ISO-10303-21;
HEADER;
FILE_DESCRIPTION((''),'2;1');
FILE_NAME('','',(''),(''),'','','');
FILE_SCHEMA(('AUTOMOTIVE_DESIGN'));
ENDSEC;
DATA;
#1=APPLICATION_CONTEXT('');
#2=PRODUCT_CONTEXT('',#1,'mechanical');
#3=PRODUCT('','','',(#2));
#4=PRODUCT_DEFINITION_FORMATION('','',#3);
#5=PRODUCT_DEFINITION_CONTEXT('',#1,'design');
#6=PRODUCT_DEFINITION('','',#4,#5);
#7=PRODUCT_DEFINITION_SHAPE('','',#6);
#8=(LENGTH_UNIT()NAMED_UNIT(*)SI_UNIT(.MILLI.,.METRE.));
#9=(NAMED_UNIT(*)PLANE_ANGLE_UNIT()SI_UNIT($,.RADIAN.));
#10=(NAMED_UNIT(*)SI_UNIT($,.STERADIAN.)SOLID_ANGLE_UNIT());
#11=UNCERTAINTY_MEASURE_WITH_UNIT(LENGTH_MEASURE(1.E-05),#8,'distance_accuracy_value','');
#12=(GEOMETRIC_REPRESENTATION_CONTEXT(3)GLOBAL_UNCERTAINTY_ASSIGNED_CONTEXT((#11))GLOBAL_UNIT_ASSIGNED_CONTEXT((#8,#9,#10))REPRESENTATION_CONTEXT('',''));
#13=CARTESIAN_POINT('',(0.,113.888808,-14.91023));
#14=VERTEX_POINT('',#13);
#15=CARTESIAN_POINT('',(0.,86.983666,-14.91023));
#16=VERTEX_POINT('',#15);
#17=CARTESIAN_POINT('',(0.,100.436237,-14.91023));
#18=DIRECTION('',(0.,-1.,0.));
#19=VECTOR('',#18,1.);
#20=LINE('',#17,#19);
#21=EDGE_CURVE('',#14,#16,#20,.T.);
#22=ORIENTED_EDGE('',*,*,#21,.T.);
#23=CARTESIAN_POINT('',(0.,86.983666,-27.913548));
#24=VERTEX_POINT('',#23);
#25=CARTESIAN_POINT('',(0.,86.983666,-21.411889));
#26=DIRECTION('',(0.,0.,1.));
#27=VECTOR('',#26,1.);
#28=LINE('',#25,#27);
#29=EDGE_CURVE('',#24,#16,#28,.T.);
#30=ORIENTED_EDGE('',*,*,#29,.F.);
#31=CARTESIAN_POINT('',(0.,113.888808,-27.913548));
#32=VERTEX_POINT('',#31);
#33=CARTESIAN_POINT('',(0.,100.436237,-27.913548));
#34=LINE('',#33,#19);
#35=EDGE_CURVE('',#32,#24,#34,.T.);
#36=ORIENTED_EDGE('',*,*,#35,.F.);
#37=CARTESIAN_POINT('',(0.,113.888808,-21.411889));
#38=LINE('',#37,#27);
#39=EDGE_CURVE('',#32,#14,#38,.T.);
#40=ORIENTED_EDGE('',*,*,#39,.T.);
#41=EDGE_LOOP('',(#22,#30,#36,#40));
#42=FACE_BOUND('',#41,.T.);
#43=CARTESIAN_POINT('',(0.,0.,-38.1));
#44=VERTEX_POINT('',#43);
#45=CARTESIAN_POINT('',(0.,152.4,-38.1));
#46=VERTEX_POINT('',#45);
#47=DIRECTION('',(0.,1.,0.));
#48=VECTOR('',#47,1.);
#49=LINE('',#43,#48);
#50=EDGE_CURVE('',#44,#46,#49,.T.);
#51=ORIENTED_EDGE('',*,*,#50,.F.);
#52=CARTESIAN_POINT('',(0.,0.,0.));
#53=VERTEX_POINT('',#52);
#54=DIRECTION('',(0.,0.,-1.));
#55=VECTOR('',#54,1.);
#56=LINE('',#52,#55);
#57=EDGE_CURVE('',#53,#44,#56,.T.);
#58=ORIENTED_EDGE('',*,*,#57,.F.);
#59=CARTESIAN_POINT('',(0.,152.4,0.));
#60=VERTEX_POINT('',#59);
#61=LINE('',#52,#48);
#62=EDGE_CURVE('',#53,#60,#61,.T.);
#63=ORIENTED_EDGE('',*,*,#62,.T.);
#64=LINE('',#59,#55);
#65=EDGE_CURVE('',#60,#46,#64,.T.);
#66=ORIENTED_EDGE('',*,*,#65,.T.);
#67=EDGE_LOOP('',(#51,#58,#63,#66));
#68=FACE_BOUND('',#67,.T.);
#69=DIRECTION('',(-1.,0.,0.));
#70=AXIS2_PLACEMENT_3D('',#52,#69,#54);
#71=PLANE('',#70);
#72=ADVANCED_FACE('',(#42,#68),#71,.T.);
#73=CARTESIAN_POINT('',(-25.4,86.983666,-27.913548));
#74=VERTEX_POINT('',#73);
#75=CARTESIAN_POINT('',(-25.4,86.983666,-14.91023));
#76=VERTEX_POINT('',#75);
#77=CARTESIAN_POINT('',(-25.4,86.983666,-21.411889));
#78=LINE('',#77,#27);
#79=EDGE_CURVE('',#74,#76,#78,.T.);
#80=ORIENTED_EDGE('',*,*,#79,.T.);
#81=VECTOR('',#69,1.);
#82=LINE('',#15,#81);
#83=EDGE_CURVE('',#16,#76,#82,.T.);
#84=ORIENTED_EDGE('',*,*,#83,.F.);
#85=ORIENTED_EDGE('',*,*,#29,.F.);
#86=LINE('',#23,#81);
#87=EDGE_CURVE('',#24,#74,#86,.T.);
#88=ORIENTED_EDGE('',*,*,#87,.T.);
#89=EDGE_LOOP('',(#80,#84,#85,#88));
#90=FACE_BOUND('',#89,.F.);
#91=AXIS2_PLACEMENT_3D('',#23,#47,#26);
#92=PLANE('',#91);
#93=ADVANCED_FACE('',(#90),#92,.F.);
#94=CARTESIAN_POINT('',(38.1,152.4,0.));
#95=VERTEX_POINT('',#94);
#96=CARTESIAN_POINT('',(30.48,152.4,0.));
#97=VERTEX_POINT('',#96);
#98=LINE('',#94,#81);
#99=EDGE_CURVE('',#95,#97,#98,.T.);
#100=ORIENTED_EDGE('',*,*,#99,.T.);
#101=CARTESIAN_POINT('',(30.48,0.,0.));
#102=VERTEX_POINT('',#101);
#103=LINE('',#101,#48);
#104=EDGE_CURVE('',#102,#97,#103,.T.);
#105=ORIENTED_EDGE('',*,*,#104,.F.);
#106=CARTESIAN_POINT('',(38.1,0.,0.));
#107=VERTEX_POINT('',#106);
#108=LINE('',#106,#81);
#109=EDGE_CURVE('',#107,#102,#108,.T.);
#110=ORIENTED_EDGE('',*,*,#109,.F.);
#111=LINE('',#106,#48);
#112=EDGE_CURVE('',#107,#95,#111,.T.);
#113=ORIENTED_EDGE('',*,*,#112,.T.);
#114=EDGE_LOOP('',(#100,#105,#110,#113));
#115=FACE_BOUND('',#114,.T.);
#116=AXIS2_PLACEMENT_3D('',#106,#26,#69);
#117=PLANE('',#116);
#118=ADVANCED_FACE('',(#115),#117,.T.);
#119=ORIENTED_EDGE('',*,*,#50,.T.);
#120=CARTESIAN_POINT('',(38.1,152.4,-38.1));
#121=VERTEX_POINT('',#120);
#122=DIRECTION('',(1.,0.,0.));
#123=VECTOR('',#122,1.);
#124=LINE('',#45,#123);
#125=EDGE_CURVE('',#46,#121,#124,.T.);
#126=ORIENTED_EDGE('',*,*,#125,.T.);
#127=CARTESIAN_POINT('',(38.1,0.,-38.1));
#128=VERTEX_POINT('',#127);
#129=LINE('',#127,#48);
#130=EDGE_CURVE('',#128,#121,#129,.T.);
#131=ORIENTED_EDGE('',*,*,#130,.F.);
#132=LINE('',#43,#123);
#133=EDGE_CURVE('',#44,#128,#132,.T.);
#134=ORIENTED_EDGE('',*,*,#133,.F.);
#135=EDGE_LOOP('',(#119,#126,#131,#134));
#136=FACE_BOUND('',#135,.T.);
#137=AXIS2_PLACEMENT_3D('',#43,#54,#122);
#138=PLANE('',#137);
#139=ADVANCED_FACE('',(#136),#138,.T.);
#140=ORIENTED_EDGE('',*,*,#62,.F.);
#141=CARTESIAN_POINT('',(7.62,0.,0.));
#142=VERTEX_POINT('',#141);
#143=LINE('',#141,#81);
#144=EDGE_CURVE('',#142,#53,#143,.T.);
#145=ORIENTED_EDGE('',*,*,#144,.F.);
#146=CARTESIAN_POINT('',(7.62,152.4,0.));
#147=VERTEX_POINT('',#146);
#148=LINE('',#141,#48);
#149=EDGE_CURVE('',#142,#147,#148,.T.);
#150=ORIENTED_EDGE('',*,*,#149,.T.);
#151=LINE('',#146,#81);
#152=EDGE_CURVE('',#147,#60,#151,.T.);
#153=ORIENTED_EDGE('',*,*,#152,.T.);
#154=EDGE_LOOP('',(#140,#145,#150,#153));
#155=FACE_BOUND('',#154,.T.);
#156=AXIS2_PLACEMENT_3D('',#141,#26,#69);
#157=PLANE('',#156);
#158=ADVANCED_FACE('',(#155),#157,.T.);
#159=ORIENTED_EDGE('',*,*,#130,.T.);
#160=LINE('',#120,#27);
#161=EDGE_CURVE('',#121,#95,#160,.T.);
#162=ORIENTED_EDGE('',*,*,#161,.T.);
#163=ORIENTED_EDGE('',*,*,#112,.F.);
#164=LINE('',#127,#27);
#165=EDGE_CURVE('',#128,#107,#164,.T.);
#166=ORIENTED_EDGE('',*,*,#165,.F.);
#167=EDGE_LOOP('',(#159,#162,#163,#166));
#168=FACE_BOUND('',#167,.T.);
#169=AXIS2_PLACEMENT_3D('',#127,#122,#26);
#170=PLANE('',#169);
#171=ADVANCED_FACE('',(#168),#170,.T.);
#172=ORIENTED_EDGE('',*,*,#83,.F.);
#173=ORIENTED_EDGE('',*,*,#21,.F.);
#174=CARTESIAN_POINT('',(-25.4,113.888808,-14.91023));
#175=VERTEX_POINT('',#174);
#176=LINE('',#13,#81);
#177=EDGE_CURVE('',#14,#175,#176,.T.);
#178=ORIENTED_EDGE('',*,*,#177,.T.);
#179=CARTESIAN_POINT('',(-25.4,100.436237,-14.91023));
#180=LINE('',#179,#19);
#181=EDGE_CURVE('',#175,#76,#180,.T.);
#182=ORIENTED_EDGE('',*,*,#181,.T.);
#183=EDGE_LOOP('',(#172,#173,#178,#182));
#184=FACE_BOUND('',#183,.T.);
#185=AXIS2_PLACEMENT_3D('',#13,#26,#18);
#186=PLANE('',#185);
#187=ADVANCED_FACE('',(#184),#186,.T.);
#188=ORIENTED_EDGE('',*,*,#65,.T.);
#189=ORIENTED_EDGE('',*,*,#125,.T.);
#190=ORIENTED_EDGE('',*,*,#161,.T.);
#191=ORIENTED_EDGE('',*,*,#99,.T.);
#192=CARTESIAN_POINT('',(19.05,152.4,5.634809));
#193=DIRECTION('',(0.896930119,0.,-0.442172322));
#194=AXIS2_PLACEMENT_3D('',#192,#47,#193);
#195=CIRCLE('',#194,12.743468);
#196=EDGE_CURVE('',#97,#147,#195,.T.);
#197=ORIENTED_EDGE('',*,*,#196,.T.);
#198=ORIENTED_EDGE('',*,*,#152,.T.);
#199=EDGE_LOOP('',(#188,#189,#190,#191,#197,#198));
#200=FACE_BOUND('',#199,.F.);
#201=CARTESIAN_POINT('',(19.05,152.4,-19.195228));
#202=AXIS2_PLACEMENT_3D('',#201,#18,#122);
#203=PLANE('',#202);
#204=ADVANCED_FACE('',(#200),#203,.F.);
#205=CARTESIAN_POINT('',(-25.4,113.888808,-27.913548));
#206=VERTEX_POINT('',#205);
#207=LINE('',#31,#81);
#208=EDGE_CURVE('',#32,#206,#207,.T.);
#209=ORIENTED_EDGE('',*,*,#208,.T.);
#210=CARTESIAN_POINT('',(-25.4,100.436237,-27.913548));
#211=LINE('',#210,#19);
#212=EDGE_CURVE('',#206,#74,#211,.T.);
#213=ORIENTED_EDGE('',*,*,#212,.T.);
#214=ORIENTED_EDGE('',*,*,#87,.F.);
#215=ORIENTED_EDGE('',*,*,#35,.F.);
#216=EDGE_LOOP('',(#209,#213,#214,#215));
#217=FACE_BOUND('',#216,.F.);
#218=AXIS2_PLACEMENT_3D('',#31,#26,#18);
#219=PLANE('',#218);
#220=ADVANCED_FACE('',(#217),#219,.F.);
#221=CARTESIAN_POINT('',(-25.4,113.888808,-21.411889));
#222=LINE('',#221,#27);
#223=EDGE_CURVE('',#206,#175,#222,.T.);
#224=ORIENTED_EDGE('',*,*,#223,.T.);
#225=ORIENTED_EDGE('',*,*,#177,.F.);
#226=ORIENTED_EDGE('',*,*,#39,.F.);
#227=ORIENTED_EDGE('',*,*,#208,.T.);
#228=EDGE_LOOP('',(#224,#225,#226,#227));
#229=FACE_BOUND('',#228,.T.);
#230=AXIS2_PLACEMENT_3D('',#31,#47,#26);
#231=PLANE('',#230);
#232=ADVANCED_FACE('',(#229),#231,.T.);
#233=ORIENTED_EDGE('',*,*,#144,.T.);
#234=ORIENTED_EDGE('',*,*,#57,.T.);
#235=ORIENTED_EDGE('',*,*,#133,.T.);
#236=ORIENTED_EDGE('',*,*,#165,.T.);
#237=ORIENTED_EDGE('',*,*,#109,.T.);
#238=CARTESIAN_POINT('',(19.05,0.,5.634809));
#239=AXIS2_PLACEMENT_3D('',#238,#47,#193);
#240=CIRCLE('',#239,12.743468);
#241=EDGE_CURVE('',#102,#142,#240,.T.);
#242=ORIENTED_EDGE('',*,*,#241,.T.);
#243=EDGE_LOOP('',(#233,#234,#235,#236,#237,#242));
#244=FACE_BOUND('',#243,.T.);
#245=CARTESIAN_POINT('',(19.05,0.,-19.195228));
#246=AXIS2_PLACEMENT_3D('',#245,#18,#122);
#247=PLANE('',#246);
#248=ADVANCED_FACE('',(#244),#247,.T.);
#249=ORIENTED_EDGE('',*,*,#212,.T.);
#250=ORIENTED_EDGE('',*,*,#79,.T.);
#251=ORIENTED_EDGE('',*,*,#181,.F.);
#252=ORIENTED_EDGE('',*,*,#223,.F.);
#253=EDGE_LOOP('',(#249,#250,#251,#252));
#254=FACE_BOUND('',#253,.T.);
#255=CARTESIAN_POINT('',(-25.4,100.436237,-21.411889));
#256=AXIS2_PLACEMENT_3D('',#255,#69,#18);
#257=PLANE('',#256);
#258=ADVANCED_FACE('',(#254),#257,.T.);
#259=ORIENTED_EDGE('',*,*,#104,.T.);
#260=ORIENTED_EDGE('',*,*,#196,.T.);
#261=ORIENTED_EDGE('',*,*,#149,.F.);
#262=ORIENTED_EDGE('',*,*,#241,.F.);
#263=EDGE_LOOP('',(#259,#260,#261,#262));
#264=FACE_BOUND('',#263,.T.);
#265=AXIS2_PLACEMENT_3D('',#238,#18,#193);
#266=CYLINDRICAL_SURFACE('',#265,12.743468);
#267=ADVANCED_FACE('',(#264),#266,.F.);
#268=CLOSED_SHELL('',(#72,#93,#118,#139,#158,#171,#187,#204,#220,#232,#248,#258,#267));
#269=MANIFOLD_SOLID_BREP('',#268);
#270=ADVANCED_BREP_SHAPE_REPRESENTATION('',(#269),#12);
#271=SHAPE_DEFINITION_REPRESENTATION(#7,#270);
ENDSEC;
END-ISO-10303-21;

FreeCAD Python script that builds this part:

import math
import FreeCAD as App
import Part
import Sketcher
Q = App.Units.Quantity


def add_polygon(sketch, points):
    """Adds a closed chain of lines whose ends are joined by coincident constraints."""
    first, n = sketch.GeometryCount, len(points)
    for a, b in zip(points, points[1:] + points[:1]):
        sketch.addGeometry(Part.LineSegment(App.Vector(*a, 0), App.Vector(*b, 0)), False)
    for i in range(n):
        sketch.addConstraint(Sketcher.Constraint("Coincident", first + i, 2, first + (i + 1) % n, 1))

doc = App.newDocument("Part")
params = doc.addObject("Spreadsheet::Sheet", "Params")
for row, (alias, value) in enumerate([
    ("sketch1_width", "0.3 in"),
    ("sketch1_width2", "1.5 in"),
    ("pad1_length", "6 in"),
    ("pad2_length", "1 in"),
], start=1):
    params.set(f"A{row}", alias)
    params.set(f"B{row}", "=" + value)
    params.setAlias(f"B{row}", alias)

body = doc.addObject("PartDesign::Body", "Body")

# Sketch on XZ plane
sketch1 = body.newObject("Sketcher::SketchObject", "Sketch")
sketch1.AttachmentSupport = (doc.getObject("XZ_Plane"), [""])
sketch1.MapMode = "FlatFace"
sketch1.addGeometry([
    Part.LineSegment(App.Vector(8, 0, 0), App.Vector(0, 0, 0)),  # 0
    Part.LineSegment(App.Vector(0, 0, 0), App.Vector(0, -38, 0)),  # 1
    Part.LineSegment(App.Vector(0, -38, 0), App.Vector(38, -38, 0)),  # 2
    Part.LineSegment(App.Vector(38, -38, 0), App.Vector(38, 0, 0)),  # 3
    Part.LineSegment(App.Vector(38, 0, 0), App.Vector(30, 0, 0)),  # 4
    Part.ArcOfCircle(Part.Circle(App.Vector(19, 6, 0), App.Vector(0, 0, 1), 13), math.radians(-154), math.radians(-26)),  # 5
], False)
sketch1.addConstraint([
    Sketcher.Constraint("Coincident", 0, 2, 1, 1),
    Sketcher.Constraint("Coincident", 1, 2, 2, 1),
    Sketcher.Constraint("Coincident", 2, 2, 3, 1),
    Sketcher.Constraint("Coincident", 3, 2, 4, 1),
    Sketcher.Constraint("Coincident", 4, 2, 5, 2),
    Sketcher.Constraint("Coincident", 5, 1, 0, 1),
    Sketcher.Constraint("Horizontal", 0),
    Sketcher.Constraint("Vertical", 1),
    Sketcher.Constraint("Horizontal", 2),
    Sketcher.Constraint("Vertical", 3),
    Sketcher.Constraint("Horizontal", 4),
    Sketcher.Constraint("Coincident", 0, 2, -1, 1),
    Sketcher.Constraint("PointOnObject", 3, 2, -1),
    Sketcher.Constraint("Equal", 0, 4),
    Sketcher.Constraint("Equal", 2, 1),
    Sketcher.Constraint("DistanceX", 0, 2, 0, 1, Q("0.3 in")),
    Sketcher.Constraint("DistanceX", 2, 1, 2, 2, Q("1.5 in")),
    Sketcher.Constraint("Radius", 5, Q("12.743468 mm")),
])
sketch1.setExpression("Constraints[15]", "Params.sketch1_width")
sketch1.setExpression("Constraints[16]", "Params.sketch1_width2")
pad1 = body.newObject("PartDesign::Pad", "Pad")
pad1.Profile = sketch1
pad1.setExpression("Length", "Params.pad1_length")
pad1.Reversed = True

# Sketch on YZ plane
sketch2 = body.newObject("Sketcher::SketchObject", "Sketch001")
sketch2.AttachmentSupport = (doc.getObject("YZ_Plane"), [""])
sketch2.MapMode = "FlatFace"
add_polygon(sketch2, [(114, -15), (114, -28), (87, -28), (87, -15)])  # lines 0-3
sketch2.addConstraint([
    Sketcher.Constraint("Vertical", 0),
    Sketcher.Constraint("Horizontal", 1),
    Sketcher.Constraint("Vertical", 2),
    Sketcher.Constraint("Horizontal", 3),
    Sketcher.Constraint("DistanceX", 1, 2, 1, 1, Q("26.905142 mm")),
    Sketcher.Constraint("DistanceY", 0, 2, 0, 1, Q("13.003318 mm")),
    Sketcher.Constraint("DistanceY", 2, 2, -1, 1, Q("14.91023 mm")),
    Sketcher.Constraint("DistanceX", -1, 1, 0, 2, Q("113.888808 mm")),
])
pad2 = body.newObject("PartDesign::Pad", "Pad001")
pad2.Profile = sketch2
pad2.setExpression("Length", "Params.pad2_length")
pad2.Reversed = True

doc.recompute()
